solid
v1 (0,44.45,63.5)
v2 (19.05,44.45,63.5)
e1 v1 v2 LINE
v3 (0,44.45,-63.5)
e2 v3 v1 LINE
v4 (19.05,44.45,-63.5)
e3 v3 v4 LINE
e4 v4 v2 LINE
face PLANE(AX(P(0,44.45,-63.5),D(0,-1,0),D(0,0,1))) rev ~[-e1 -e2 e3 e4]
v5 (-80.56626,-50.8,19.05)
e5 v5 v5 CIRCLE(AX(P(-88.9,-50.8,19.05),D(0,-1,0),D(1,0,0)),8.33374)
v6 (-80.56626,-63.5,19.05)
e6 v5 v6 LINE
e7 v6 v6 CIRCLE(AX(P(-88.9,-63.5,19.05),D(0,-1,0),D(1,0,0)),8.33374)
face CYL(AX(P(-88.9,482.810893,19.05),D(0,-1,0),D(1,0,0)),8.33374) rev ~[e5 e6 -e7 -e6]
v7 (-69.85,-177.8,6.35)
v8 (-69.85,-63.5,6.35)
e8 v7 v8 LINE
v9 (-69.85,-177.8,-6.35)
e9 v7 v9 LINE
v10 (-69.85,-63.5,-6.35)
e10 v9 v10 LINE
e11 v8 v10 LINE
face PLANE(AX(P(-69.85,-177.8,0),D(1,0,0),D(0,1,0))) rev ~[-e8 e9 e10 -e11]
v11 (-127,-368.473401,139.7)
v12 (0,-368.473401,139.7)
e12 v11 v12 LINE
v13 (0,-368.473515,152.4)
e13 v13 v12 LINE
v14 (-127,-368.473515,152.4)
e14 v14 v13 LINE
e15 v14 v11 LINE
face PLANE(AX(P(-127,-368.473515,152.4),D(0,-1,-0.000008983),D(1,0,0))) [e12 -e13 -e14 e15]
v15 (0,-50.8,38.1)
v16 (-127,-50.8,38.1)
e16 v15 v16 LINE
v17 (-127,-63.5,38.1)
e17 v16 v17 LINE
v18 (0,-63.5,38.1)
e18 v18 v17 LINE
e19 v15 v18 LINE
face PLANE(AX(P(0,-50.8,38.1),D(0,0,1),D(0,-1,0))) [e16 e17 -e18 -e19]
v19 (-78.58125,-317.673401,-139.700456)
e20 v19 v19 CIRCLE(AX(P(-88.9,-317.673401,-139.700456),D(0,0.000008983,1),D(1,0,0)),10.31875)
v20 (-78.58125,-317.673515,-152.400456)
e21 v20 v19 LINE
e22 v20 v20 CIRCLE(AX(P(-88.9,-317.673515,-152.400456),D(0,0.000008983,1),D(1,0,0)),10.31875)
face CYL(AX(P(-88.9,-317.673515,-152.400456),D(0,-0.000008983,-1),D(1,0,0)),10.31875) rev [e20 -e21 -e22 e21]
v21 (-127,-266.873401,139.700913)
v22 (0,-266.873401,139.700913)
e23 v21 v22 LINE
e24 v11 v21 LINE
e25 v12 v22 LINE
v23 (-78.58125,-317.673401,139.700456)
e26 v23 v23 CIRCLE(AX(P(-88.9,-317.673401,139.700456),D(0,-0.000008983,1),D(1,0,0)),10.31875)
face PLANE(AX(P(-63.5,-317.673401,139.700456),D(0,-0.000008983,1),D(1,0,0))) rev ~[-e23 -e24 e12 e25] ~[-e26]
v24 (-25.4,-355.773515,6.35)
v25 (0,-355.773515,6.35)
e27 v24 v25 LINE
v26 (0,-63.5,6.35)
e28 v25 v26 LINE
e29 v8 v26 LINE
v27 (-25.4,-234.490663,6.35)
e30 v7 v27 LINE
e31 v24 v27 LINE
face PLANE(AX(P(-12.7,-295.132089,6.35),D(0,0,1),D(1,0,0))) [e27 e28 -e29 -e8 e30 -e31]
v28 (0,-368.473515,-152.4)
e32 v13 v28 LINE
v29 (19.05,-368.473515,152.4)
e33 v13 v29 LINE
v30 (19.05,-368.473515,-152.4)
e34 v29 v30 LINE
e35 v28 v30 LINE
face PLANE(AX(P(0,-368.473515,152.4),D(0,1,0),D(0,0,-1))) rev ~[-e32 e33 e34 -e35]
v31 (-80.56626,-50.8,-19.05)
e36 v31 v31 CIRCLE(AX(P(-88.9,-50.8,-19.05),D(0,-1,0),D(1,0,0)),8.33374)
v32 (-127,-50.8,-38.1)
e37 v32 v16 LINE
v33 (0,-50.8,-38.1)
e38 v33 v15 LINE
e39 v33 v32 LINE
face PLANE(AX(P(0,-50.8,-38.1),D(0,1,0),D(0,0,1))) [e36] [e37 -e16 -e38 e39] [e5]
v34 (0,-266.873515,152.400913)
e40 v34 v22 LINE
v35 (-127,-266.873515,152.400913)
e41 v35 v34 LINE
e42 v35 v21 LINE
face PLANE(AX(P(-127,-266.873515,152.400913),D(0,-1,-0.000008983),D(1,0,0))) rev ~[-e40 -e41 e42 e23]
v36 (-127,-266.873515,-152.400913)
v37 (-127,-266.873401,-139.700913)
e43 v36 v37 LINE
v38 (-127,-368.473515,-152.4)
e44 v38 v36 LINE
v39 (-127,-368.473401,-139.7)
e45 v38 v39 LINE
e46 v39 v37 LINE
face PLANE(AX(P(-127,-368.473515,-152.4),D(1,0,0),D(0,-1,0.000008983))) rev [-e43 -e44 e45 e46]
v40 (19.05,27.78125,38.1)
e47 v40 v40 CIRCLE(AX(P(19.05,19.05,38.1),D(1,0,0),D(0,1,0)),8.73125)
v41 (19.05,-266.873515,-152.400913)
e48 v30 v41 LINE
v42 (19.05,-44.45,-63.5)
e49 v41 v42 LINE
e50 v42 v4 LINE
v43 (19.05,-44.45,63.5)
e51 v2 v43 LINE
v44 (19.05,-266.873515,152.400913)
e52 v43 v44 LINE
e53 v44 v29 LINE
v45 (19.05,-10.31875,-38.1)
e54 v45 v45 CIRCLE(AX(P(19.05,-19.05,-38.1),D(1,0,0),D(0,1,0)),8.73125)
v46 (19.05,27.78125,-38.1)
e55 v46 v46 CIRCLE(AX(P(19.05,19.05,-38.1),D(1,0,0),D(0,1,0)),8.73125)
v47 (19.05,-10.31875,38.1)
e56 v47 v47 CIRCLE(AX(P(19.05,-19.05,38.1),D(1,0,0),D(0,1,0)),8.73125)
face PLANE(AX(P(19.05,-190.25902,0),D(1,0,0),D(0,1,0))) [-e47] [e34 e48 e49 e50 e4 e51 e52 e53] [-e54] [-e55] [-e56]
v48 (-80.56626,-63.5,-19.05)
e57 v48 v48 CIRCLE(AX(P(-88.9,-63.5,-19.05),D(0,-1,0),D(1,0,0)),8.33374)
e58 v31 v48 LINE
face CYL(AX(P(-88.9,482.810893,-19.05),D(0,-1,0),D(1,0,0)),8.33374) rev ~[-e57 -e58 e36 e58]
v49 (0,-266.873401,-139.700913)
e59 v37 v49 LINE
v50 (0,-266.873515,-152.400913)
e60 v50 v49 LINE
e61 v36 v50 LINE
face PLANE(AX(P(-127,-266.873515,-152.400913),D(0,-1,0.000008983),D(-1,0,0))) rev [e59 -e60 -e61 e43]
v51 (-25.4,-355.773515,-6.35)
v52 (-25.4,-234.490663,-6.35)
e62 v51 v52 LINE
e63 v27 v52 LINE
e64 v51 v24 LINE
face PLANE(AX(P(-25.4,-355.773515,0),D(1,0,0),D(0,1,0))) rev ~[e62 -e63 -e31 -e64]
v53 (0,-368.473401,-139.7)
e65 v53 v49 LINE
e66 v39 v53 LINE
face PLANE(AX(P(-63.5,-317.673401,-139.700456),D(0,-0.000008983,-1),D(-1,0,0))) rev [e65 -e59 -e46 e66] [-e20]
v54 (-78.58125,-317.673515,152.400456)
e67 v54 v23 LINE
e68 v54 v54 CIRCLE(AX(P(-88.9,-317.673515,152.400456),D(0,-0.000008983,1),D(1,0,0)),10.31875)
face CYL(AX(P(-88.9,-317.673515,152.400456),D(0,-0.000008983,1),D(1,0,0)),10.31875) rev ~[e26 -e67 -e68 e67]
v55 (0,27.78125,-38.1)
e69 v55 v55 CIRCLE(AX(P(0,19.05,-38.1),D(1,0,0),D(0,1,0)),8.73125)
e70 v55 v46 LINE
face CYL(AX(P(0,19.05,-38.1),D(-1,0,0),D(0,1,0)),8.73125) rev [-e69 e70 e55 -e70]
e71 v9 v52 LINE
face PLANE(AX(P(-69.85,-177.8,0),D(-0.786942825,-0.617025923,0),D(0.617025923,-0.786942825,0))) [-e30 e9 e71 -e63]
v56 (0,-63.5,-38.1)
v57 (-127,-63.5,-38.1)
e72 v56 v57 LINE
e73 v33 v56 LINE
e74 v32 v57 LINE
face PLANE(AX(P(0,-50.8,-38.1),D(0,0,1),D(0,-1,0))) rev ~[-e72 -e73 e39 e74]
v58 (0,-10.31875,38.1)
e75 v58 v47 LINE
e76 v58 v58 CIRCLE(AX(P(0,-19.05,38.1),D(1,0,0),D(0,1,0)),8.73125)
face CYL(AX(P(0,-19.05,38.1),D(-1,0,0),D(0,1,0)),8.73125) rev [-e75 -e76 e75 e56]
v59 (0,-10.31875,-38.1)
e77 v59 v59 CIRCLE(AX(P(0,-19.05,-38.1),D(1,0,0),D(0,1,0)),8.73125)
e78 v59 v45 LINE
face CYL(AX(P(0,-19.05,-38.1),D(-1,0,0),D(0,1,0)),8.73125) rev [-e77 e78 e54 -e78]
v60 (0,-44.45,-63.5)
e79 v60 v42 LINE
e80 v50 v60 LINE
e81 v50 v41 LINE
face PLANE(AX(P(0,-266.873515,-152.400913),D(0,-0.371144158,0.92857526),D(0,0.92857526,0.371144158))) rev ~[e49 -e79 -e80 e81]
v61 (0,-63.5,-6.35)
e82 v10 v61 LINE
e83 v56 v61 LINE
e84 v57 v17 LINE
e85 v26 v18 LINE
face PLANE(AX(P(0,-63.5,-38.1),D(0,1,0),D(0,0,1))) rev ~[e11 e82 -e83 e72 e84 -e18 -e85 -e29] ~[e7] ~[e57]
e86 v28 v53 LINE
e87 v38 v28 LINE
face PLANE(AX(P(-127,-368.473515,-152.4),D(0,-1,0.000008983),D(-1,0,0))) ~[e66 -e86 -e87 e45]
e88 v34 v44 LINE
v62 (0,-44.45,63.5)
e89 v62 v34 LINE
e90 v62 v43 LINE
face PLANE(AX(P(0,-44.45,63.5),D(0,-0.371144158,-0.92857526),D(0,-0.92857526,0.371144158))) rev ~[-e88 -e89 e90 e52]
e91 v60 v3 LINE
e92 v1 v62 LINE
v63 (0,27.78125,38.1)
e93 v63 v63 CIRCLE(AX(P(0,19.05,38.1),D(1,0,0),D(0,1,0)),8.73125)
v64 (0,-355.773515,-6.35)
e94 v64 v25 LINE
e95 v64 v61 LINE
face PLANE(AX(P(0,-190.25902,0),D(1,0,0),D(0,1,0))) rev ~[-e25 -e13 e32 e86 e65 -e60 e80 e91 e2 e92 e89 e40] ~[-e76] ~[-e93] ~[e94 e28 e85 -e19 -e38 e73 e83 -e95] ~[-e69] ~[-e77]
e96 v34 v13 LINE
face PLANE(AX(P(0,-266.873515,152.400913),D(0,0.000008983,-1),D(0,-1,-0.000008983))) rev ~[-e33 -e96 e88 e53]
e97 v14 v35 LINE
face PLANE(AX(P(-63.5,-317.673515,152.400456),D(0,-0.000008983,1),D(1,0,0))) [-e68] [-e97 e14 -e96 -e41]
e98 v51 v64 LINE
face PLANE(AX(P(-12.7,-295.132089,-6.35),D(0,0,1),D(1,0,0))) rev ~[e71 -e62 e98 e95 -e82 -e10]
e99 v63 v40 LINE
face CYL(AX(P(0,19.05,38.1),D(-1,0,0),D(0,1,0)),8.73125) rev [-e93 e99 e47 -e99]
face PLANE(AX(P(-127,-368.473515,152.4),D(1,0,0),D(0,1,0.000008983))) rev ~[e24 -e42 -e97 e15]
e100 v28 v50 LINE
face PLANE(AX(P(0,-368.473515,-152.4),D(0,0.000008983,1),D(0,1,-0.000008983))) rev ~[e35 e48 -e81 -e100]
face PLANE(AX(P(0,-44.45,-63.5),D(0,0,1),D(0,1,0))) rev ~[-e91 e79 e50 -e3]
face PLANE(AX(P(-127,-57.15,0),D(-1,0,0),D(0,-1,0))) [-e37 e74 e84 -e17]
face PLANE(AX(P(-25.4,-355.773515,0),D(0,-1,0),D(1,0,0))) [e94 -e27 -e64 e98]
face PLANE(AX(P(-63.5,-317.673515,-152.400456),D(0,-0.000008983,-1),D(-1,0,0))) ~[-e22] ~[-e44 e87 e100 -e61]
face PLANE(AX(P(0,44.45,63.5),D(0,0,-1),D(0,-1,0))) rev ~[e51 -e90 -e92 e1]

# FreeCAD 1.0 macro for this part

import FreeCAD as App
import Part
import Sketcher
from FreeCAD import Vector
Q = App.Units.Quantity


def add_polygon(sketch, points):
    """Adds a closed chain of lines whose ends are joined by coincident constraints."""
    first, n = sketch.GeometryCount, len(points)
    for a, b in zip(points, points[1:] + points[:1]):
        sketch.addGeometry(Part.LineSegment(App.Vector(*a, 0), App.Vector(*b, 0)), False)
    for i in range(n):
        sketch.addConstraint(Sketcher.Constraint("Coincident", first + i, 2, first + (i + 1) % n, 1))

doc = App.newDocument("Part")
body = doc.addObject("PartDesign::Body", "Body")

# Sketch on YZ plane
sketch1 = body.newObject("Sketcher::SketchObject", "Sketch")
sketch1.AttachmentSupport = (doc.getObject("YZ_Plane"), [""])
sketch1.MapMode = "FlatFace"
add_polygon(sketch1, [(44, 64), (-44, 64), (-267, 152), (-368, 152), (-368, -152), (-267, -152), (-44, -64), (44, -64)])  # lines 0-7
sketch1.addGeometry(Part.Circle(Vector(-19, -38, 0), Vector(0, 0, 1), 9), False)  # 8
sketch1.addGeometry(Part.Circle(Vector(19, -38, 0), Vector(0, 0, 1), 9), False)  # 9
sketch1.addGeometry(Part.Circle(Vector(-19, 38, 0), Vector(0, 0, 1), 9), False)  # 10
sketch1.addGeometry(Part.Circle(Vector(19, 38, 0), Vector(0, 0, 1), 9), False)  # 11
sketch1.addConstraint(Sketcher.Constraint("Horizontal", 0))
sketch1.addConstraint(Sketcher.Constraint("Vertical", 3))
sketch1.addConstraint(Sketcher.Constraint("Horizontal", 6))
sketch1.addConstraint(Sketcher.Constraint("Vertical", 7))
sketch1.addConstraint(Sketcher.Constraint("Equal", 8, 9))
sketch1.addConstraint(Sketcher.Constraint("Equal", 9, 10))
sketch1.addConstraint(Sketcher.Constraint("Equal", 10, 11))
sketch1.addConstraint(Sketcher.Constraint("Symmetric", 9, 3, 10, 3, -1, 1))
sketch1.addConstraint(Sketcher.Constraint("Symmetric", 8, 3, 11, 3, -1, 1))
sketch1.addConstraint(Sketcher.Constraint("Symmetric", 0, 2, 6, 2, -1, 1))
sketch1.addConstraint(Sketcher.Constraint("Symmetric", 8, 3, 9, 3, -2))
sketch1.addConstraint(Sketcher.Constraint("Symmetric", 1, 2, 4, 2, -1))
sketch1.addConstraint(Sketcher.Constraint("Vertical", 0, 2, 5, 2))
sketch1.addConstraint(Sketcher.Constraint("DistanceY", 3, 2, 3, 1, Q("12 in")))
sketch1.addConstraint(Sketcher.Constraint("DistanceY", 7, 1, 7, 2, Q("5 in")))
sketch1.addConstraint(Sketcher.Constraint("Distance", 2, Q("4 in")))
sketch1.addConstraint(Sketcher.Constraint("Diameter", 8, Q("0.6875 in")))
sketch1.addConstraint(Sketcher.Constraint("DistanceX", 0, 2, 0, 1, Q("3.5 in")))
sketch1.addConstraint(Sketcher.Constraint("DistanceY", -1, 1, 2, 2, Q("6 in")))
sketch1.addConstraint(Sketcher.Constraint("DistanceY", 8, 3, 10, 3, Q("3 in")))
sketch1.addConstraint(Sketcher.Constraint("DistanceX", 0, 2, 10, 3, Q("1 in")))
sketch1.addConstraint(Sketcher.Constraint("Distance", 1, Q("239.532028 mm")))
sketch1.addConstraint(Sketcher.Constraint("DistanceX", 1, 2, -1, 1, Q("266.873515 mm")))
pad1 = body.newObject("PartDesign::Pad", "Pad")
pad1.Profile = sketch1
pad1.Length = Q("0.75 in")

# Sketch on XY plane
sketch2 = body.newObject("Sketcher::SketchObject", "Sketch001")
sketch2.AttachmentSupport = (doc.getObject("XY_Plane"), [""])
sketch2.MapMode = "FlatFace"
sketch2.AttachmentOffset = App.Placement(Vector(0, 0, 152.40331), App.Rotation())
add_polygon(sketch2, [(-127, -267), (-127, -368), (0, -368), (0, -267)])  # lines 0-3
sketch2.addGeometry(Part.Circle(Vector(-89, -318, 0), Vector(0, 0, 1), 10), False)  # 4
sketch2.addConstraint(Sketcher.Constraint("Vertical", 0))
sketch2.addConstraint(Sketcher.Constraint("Horizontal", 1))
sketch2.addConstraint(Sketcher.Constraint("Vertical", 2))
sketch2.addConstraint(Sketcher.Constraint("Horizontal", 3))
sketch2.addConstraint(Sketcher.Constraint("PointOnObject", 1, 2, -2))
sketch2.addConstraint(Sketcher.Constraint("DistanceX", 1, 1, 1, 2, Q("5 in")))
sketch2.addConstraint(Sketcher.Constraint("DistanceY", 0, 2, 0, 1, Q("4 in")))
sketch2.addConstraint(Sketcher.Constraint("Diameter", 4, Q("0.8125 in")))
sketch2.addConstraint(Sketcher.Constraint("DistanceY", 0, 2, 4, 3, Q("2 in")))
sketch2.addConstraint(Sketcher.Constraint("DistanceX", 4, 3, -1, 1, Q("3.5 in")))
sketch2.addConstraint(Sketcher.Constraint("DistanceY", 4, 3, -1, 1, Q("317.673515 mm")))
pad2 = body.newObject("PartDesign::Pad", "Pad001")
pad2.Profile = sketch2
pad2.Length = Q("0.5 in")
pad2.Reversed = True
body2 = doc.addObject("PartDesign::Body", "Body001")
doc.recompute()

body2.BaseFeature = body
doc.recompute()

mirroring = doc.addObject("Part::Mirroring", "Mirroring")
mirroring.Source = body
mirroring.Base = Vector(0, 0, 0)
mirroring.Normal = Vector(0, 0, 1)
body3 = doc.addObject("PartDesign::Body", "Body002")
body3.BaseFeature = mirroring
boolean = body2.newObject("PartDesign::Boolean", "Boolean")
boolean.Type = "Fuse"
boolean.addObjects([body3])
doc.recompute()

# Sketch on XY plane
sketch3 = body2.newObject("Sketcher::SketchObject", "Sketch002")
sketch3.AttachmentSupport = (doc.getObject("XY_Plane001"), [""])
sketch3.MapMode = "FlatFace"
add_polygon(sketch3, [(-25, -234), (-25, -356), (0, -356), (0, -64), (-70, -64), (-70, -178)])  # lines 0-5
sketch3.addConstraint(Sketcher.Constraint("Vertical", 0))
sketch3.addConstraint(Sketcher.Constraint("Horizontal", 1))
sketch3.addConstraint(Sketcher.Constraint("Vertical", 2))
sketch3.addConstraint(Sketcher.Constraint("Horizontal", 3))
sketch3.addConstraint(Sketcher.Constraint("Vertical", 4))
sketch3.addConstraint(Sketcher.Constraint("PointOnObject", 1, 2, -2))
sketch3.addConstraint(Sketcher.Constraint("DistanceX", 1, 1, 1, 2, Q("1 in")))
sketch3.addConstraint(Sketcher.Constraint("DistanceY", 4, 2, 4, 1, Q("4.5 in")))
sketch3.addConstraint(Sketcher.Constraint("DistanceY", 4, 2, -1, 1, Q("7 in")))
sketch3.addConstraint(Sketcher.Constraint("DistanceX", 3, 2, 3, 1, Q("2.75 in")))
sketch3.addConstraint(Sketcher.Constraint("DistanceY", 0, 2, 0, 1, Q("121.282852 mm")))
sketch3.addConstraint(Sketcher.Constraint("DistanceY", 2, 1, 2, 2, Q("292.273515 mm")))
pad3 = body2.newObject("PartDesign::Pad", "Pad002")
pad3.Profile = sketch3
pad3.Length = Q("0.5 in")
pad3.Midplane = True

# Sketch on YZ plane
sketch4 = body2.newObject("Sketcher::SketchObject", "Sketch003")
sketch4.AttachmentSupport = (doc.getObject("YZ_Plane001"), [""])
sketch4.MapMode = "FlatFace"
add_polygon(sketch4, [(-51, 38), (-51, -38), (-64, -38), (-64, 38)])  # lines 0-3
sketch4.addConstraint(Sketcher.Constraint("Vertical", 0))
sketch4.addConstraint(Sketcher.Constraint("Horizontal", 1))
sketch4.addConstraint(Sketcher.Constraint("Vertical", 2))
sketch4.addConstraint(Sketcher.Constraint("Horizontal", 3))
sketch4.addConstraint(Sketcher.Constraint("DistanceY", 0, 2, 0, 1, Q("3 in")))
sketch4.addConstraint(Sketcher.Constraint("DistanceX", 1, 2, 1, 1, Q("0.5 in")))
sketch4.addConstraint(Sketcher.Constraint("DistanceX", 0, 2, -1, 1, Q("2 in")))
sketch4.addConstraint(Sketcher.Constraint("DistanceY", 0, 2, -1, 1, Q("1.5 in")))
pad4 = body2.newObject("PartDesign::Pad", "Pad003")
pad4.Profile = sketch4
pad4.Length = Q("5 in")
pad4.Reversed = True

# Sketch on XZ plane
sketch5 = body2.newObject("Sketcher::SketchObject", "Sketch004")
sketch5.AttachmentSupport = (doc.getObject("XZ_Plane001"), [""])
sketch5.MapMode = "FlatFace"
sketch5.AttachmentOffset = App.Placement(Vector(0, 0, 2 * 25.4), App.Rotation())
sketch5.addGeometry(Part.Circle(Vector(-89, 19, 0), Vector(0, 0, 1), 8), False)
sketch5.addGeometry(Part.Circle(Vector(-89, -19, 0), Vector(0, 0, 1), 8), False)
sketch5.addConstraint(Sketcher.Constraint("Equal", 0, 1))
sketch5.addConstraint(Sketcher.Constraint("Symmetric", 0, 3, 1, 3, -1))
sketch5.addConstraint(Sketcher.Constraint("Diameter", 0, Q("0.6562 in")))
sketch5.addConstraint(Sketcher.Constraint("DistanceX", 0, 3, -1, 1, Q("3.5 in")))
sketch5.addConstraint(Sketcher.Constraint("DistanceY", 1, 3, 0, 3, Q("1.5 in")))
doc.recompute()
hole = body2.newObject("PartDesign::Hole", "Hole")
hole.Profile = sketch5
hole.ThreadType = "None"
hole.Diameter = Q("0.6562 in")
hole.DepthType = "ThroughAll"
hole.Reversed = True
mirroring.Visibility = False

doc.recompute()
